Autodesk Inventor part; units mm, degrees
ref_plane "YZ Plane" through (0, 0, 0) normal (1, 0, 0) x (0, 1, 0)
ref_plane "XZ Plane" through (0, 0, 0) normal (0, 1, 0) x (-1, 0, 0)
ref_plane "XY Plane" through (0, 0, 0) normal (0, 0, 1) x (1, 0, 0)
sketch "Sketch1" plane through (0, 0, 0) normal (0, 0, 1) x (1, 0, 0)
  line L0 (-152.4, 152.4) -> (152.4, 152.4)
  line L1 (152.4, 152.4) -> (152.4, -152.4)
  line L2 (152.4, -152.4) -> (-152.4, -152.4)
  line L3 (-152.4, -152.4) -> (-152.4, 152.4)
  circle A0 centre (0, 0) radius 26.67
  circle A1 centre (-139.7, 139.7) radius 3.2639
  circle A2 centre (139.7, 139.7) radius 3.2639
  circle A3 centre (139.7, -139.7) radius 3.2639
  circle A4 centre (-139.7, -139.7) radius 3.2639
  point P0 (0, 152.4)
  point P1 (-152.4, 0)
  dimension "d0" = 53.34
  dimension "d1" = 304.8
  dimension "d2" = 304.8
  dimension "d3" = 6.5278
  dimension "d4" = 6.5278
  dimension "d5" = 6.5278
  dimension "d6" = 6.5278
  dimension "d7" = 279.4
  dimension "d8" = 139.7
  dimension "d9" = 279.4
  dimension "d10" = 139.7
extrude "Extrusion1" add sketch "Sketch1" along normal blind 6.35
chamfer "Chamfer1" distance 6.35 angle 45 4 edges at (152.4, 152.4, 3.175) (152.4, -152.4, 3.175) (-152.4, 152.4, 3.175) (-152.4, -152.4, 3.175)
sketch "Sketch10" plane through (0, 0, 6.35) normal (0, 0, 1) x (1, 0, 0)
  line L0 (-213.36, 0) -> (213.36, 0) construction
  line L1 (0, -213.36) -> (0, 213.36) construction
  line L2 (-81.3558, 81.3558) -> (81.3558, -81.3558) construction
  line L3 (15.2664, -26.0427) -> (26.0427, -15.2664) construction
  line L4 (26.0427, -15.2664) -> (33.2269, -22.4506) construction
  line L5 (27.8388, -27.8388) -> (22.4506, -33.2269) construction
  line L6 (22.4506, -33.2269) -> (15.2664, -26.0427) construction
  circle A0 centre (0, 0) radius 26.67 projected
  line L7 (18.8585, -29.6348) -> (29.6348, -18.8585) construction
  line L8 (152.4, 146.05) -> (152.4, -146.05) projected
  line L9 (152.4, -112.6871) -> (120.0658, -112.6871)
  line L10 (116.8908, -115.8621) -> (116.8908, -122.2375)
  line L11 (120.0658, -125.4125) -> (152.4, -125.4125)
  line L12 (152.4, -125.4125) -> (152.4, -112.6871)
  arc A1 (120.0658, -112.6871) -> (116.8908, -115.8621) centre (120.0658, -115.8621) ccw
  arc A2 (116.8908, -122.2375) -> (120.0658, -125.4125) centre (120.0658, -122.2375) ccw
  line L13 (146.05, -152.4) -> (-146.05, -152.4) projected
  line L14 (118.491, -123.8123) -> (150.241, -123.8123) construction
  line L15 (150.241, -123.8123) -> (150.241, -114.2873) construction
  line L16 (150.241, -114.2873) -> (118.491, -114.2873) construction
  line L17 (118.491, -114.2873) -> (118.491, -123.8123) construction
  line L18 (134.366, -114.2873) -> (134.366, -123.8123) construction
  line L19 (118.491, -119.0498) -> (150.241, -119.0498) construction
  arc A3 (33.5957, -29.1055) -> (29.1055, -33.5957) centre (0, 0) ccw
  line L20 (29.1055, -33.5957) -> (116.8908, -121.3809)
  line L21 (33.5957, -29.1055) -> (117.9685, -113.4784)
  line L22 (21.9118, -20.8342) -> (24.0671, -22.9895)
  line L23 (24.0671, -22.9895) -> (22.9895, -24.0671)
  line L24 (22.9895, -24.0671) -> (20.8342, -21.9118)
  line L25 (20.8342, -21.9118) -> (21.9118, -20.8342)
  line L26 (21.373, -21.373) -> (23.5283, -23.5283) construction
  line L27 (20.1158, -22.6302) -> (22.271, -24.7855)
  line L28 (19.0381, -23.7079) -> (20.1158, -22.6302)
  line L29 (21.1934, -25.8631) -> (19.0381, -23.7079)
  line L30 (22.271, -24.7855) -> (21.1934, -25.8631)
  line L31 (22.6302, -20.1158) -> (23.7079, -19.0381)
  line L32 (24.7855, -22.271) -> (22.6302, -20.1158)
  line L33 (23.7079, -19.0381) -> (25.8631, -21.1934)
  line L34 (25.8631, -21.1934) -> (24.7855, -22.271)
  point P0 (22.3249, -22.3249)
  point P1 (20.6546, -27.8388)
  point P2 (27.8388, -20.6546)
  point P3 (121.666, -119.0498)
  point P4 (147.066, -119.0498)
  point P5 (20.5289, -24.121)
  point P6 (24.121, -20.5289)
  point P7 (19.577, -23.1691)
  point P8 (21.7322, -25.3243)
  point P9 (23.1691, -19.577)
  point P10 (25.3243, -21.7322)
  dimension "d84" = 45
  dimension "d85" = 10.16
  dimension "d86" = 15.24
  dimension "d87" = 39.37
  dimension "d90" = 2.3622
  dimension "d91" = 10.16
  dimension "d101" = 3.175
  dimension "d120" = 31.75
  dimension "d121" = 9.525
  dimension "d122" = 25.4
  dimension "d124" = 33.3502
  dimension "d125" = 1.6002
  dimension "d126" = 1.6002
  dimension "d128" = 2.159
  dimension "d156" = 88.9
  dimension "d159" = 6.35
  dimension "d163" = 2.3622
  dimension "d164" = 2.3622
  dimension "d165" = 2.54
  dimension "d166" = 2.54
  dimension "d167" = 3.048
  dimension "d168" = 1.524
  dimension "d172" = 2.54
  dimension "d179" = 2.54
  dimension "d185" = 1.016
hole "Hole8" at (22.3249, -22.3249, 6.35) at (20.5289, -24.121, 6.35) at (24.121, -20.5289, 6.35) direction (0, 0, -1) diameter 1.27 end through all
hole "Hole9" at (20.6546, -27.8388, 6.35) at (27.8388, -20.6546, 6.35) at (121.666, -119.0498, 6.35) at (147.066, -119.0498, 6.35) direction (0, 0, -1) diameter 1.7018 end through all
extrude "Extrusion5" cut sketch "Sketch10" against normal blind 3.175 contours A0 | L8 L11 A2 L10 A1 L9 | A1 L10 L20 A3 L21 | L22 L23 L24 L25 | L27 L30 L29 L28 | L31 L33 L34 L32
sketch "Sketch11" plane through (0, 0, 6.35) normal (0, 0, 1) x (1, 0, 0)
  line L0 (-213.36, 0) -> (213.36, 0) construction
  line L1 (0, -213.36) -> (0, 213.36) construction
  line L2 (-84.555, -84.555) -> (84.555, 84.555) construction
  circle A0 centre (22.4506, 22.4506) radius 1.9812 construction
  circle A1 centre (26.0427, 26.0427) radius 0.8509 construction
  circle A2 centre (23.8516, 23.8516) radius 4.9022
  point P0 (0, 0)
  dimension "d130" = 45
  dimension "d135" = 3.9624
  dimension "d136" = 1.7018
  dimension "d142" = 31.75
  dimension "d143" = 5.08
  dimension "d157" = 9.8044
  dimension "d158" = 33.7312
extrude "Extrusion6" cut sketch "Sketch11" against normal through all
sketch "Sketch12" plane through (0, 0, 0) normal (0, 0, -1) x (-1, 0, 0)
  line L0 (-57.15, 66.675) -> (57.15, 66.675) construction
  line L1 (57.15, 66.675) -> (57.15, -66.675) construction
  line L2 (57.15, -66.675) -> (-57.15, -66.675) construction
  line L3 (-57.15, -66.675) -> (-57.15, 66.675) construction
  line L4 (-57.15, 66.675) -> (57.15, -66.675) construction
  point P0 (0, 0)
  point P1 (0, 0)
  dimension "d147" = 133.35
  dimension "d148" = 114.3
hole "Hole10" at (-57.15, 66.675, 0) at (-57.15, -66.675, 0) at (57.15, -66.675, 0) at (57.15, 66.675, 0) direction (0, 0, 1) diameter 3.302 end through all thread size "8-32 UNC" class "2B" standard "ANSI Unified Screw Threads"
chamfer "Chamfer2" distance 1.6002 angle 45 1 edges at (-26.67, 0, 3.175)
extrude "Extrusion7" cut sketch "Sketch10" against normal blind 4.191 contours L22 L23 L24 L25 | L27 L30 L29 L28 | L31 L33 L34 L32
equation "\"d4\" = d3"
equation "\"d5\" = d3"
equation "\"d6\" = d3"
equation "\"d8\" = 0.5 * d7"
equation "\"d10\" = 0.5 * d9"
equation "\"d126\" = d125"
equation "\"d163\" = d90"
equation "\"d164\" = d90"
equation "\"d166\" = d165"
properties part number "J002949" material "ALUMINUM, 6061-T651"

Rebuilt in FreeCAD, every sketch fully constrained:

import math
import FreeCAD as App
import Part
import Sketcher
Q = App.Units.Quantity


def edges_at(feature, points):
    """Names of the edges that pass closest to the given points."""
    edges = feature.Shape.Edges
    near = lambda p: min(range(len(edges)), key=lambda i: edges[i].distToShape(Part.Vertex(*p))[0])
    return sorted({f"Edge{near(p) + 1}" for p in points})


def add_polygon(sketch, points):
    """Adds a closed chain of lines whose ends are joined by coincident constraints."""
    first, n = sketch.GeometryCount, len(points)
    for a, b in zip(points, points[1:] + points[:1]):
        sketch.addGeometry(Part.LineSegment(App.Vector(*a, 0), App.Vector(*b, 0)), False)
    for i in range(n):
        sketch.addConstraint(Sketcher.Constraint("Coincident", first + i, 2, first + (i + 1) % n, 1))

doc = App.newDocument("Part")
body = doc.addObject("PartDesign::Body", "Body")

sketch1 = body.newObject("Sketcher::SketchObject", "Sketch")
sketch1.AttachmentSupport = (doc.getObject("XY_Plane"), [""])
sketch1.MapMode = "FlatFace"
add_polygon(sketch1, [(152.4, 152.4), (-152.4, 152.4), (-152.4, -152.4), (152.4, -152.4)])
sketch1.addGeometry(Part.Circle(App.Vector(-139.7, -139.7, 0), App.Vector(0, 0, 1), 3.2639), False)
sketch1.addGeometry(Part.Circle(App.Vector(139.7, -139.7, 0), App.Vector(0, 0, 1), 3.2639), False)
sketch1.addGeometry(Part.Circle(App.Vector(-139.7, 139.7, 0), App.Vector(0, 0, 1), 3.2639), False)
sketch1.addGeometry(Part.Circle(App.Vector(0, 0, 0), App.Vector(0, 0, 1), 26.67), False)
sketch1.addGeometry(Part.Circle(App.Vector(139.7, 139.7, 0), App.Vector(0, 0, 1), 3.2639), False)
sketch1.addConstraint([
    Sketcher.Constraint("Horizontal", 0),
    Sketcher.Constraint("Vertical", 1),
    Sketcher.Constraint("Horizontal", 2),
    Sketcher.Constraint("Vertical", 3),
    Sketcher.Constraint("Coincident", 7, 3, -1, 1),
    Sketcher.Constraint("Equal", 4, 5),
    Sketcher.Constraint("Equal", 5, 6),
    Sketcher.Constraint("Equal", 6, 8),
    Sketcher.Constraint("Symmetric", 5, 3, 6, 3, -1, 1),
    Sketcher.Constraint("Symmetric", 4, 3, 8, 3, -1, 1),
    Sketcher.Constraint("Symmetric", 0, 2, 2, 2, -1, 1),
    Sketcher.Constraint("Symmetric", 4, 3, 5, 3, -2),
    Sketcher.Constraint("Equal", 2, 1),
    Sketcher.Constraint("Diameter", 7, Q("2.1 in")),
    Sketcher.Constraint("DistanceX", 0, 2, 0, 1, Q("12 in")),
    Sketcher.Constraint("Diameter", 4, Q("0.257 in")),
    Sketcher.Constraint("DistanceX", 4, 3, 5, 3, Q("11 in")),
    Sketcher.Constraint("DistanceY", 4, 3, 6, 3, Q("11 in")),
])
pad1 = body.newObject("PartDesign::Pad", "Pad")
pad1.Profile = sketch1
pad1.Length = Q("0.25 in")
doc.recompute()

chamfer = body.newObject("PartDesign::Chamfer", "Chamfer")
chamfer.Base = (pad1, edges_at(pad1, [
    (152.4, 152.4, 3.175),
    (152.4, -152.4, 3.175),
    (-152.4, 152.4, 3.175),
    (-152.4, -152.4, 3.175),
]))
chamfer.Size = Q("0.25 in")

sketch2 = body.newObject("Sketcher::SketchObject", "Sketch001")
sketch2.AttachmentSupport = (doc.getObject("XY_Plane"), [""])
sketch2.MapMode = "FlatFace"
sketch2.AttachmentOffset = App.Placement(App.Vector(0, 0, 0.25 * 25.4), App.Rotation())
sketch2.addGeometry([
    Part.Circle(App.Vector(22.3249, -22.3249, 0), App.Vector(0, 0, 1), 0.635),
    Part.Circle(App.Vector(20.5289, -24.121, 0), App.Vector(0, 0, 1), 0.635),
    Part.Circle(App.Vector(24.121, -20.5289, 0), App.Vector(0, 0, 1), 0.635),
], False)
sketch2.addConstraint([
    Sketcher.Constraint("Equal", 0, 1),
    Sketcher.Constraint("Equal", 1, 2),
    Sketcher.Constraint("Diameter", 0, Q("0.05 in")),
    Sketcher.Constraint("DistanceX", 1, 3, 0, 3, Q("0.0707 in")),
    Sketcher.Constraint("DistanceY", 0, 3, 2, 3, Q("0.0707 in")),
    Sketcher.Constraint("DistanceX", -1, 1, 0, 3, 22.325),
    Sketcher.Constraint("DistanceY", 0, 3, -1, 1, 22.325),
    Sketcher.Constraint("DistanceY", 1, 3, -1, 1, 24.121),
    Sketcher.Constraint("DistanceX", -1, 1, 2, 3, 24.121),
])
doc.recompute()
hole = body.newObject("PartDesign::Hole", "Hole")
hole.Profile = sketch2
hole.ThreadType = "None"
hole.Diameter = Q("0.05 in")
hole.DepthType = "ThroughAll"

sketch3 = body.newObject("Sketcher::SketchObject", "Sketch002")
sketch3.AttachmentSupport = (doc.getObject("XY_Plane"), [""])
sketch3.MapMode = "FlatFace"
sketch3.AttachmentOffset = App.Placement(App.Vector(0, 0, 0.25 * 25.4), App.Rotation())
sketch3.addGeometry([
    Part.Circle(App.Vector(20.6546, -27.8388, 0), App.Vector(0, 0, 1), 0.8509),
    Part.Circle(App.Vector(27.8388, -20.6546, 0), App.Vector(0, 0, 1), 0.8509),
    Part.Circle(App.Vector(121.666, -119.0498, 0), App.Vector(0, 0, 1), 0.8509),
    Part.Circle(App.Vector(147.066, -119.0498, 0), App.Vector(0, 0, 1), 0.8509),
], False)
sketch3.addConstraint([
    Sketcher.Constraint("Equal", 0, 1),
    Sketcher.Constraint("Equal", 1, 2),
    Sketcher.Constraint("Equal", 2, 3),
    Sketcher.Constraint("Horizontal", 2, 3, 3, 3),
    Sketcher.Constraint("Diameter", 0, Q("0.067 in")),
    Sketcher.Constraint("DistanceX", 2, 3, 3, 3, Q("1 in")),
    Sketcher.Constraint("DistanceX", -1, 1, 2, 3, Q("4.79 in")),
    Sketcher.Constraint("DistanceY", 2, 3, -1, 1, Q("4.687 in")),
    Sketcher.Constraint("DistanceX", -1, 1, 0, 3, 20.6546),
    Sketcher.Constraint("DistanceY", 0, 3, -1, 1, 27.8388),
    Sketcher.Constraint("DistanceX", -1, 1, 1, 3, 27.8388),
    Sketcher.Constraint("DistanceY", 1, 3, -1, 1, 20.6546),
])
doc.recompute()
hole2 = body.newObject("PartDesign::Hole", "Hole001")
hole2.Profile = sketch3
hole2.ThreadType = "None"
hole2.Diameter = Q("0.067 in")
hole2.DepthType = "ThroughAll"

sketch4 = body.newObject("Sketcher::SketchObject", "Sketch003")
sketch4.AttachmentSupport = (doc.getObject("XY_Plane"), [""])
sketch4.MapMode = "FlatFace"
sketch4.AttachmentOffset = App.Placement(App.Vector(0, 0, 0.25 * 25.4), App.Rotation())
sketch4.addGeometry([
    Part.LineSegment(App.Vector(29.1055, -33.5957, 0), App.Vector(116.8908, -121.3809, 0)),
    Part.LineSegment(App.Vector(116.8908, -121.3809, 0), App.Vector(116.8908, -122.2375, 0)),
    Part.ArcOfCircle(Part.Circle(App.Vector(120.0658, -122.2375, 0), App.Vector(0, 0, 1), 3.175), math.radians(180), math.radians(270)),
    Part.LineSegment(App.Vector(120.0658, -125.4125, 0), App.Vector(152.4, -125.4125, 0)),
    Part.LineSegment(App.Vector(152.4, -125.4125, 0), App.Vector(152.4, -112.6871, 0)),
    Part.LineSegment(App.Vector(152.4, -112.6871, 0), App.Vector(120.0658, -112.6871, 0)),
    Part.ArcOfCircle(Part.Circle(App.Vector(120.0658, -115.8621, 0), App.Vector(0, 0, 1), 3.175), math.radians(90), math.radians(131.342954)),
    Part.LineSegment(App.Vector(117.9685, -113.4784, 0), App.Vector(33.5957, -29.1055, 0)),
    Part.ArcOfCircle(Part.Circle(App.Vector(0, 0, 0), App.Vector(0, 0, 1), 44.449985), math.radians(-40.903889), math.radians(310.903889)),
], False)
sketch4.addConstraint([
    Sketcher.Constraint("Coincident", 0, 2, 1, 1),
    Sketcher.Constraint("Tangent", 1, 2, 2, 1),
    Sketcher.Constraint("Tangent", 2, 2, 3, 1),
    Sketcher.Constraint("Coincident", 3, 2, 4, 1),
    Sketcher.Constraint("Coincident", 4, 2, 5, 1),
    Sketcher.Constraint("Tangent", 5, 2, 6, 1),
    Sketcher.Constraint("Coincident", 6, 2, 7, 1),
    Sketcher.Constraint("Coincident", 7, 2, 8, 1),
    Sketcher.Constraint("Coincident", 8, 2, 0, 1),
    Sketcher.Constraint("Vertical", 1),
    Sketcher.Constraint("Horizontal", 3),
    Sketcher.Constraint("Vertical", 4),
    Sketcher.Constraint("Horizontal", 5),
    Sketcher.Constraint("Coincident", 8, 3, -1, 1),
    Sketcher.Constraint("Equal", 2, 6),
    Sketcher.Constraint("Parallel", 0, 7),
    Sketcher.Constraint("Vertical", 2, 3, 6, 3),
    Sketcher.Constraint("Radius", 8, Q("1.75 in")),
    Sketcher.Constraint("Angle", 0, Q("-45 deg")),
    Sketcher.Constraint("Radius", 2, Q("0.125 in")),
    Sketcher.Constraint("DistanceX", -1, 1, 3, 2, Q("6 in")),
    Sketcher.Constraint("DistanceX", 3, 1, 3, 2, Q("1.273 in")),
    Sketcher.Constraint("DistanceY", 4, 1, 4, 2, Q("0.501 in")),
    Sketcher.Constraint("DistanceY", 2, 3, -1, 1, Q("4.8125 in")),
    Sketcher.Constraint("DistanceY", 6, 2, 8, 2, Q("3.145 in")),
    Sketcher.Constraint("DistanceY", 1, 2, 1, 1, 0.8566),
])
pocket1 = body.newObject("PartDesign::Pocket", "Pocket")
pocket1.Profile = sketch4
pocket1.Length = Q("0.125 in")

sketch5 = body.newObject("Sketcher::SketchObject", "Sketch004")
sketch5.AttachmentSupport = (doc.getObject("XY_Plane"), [""])
sketch5.MapMode = "FlatFace"
sketch5.AttachmentOffset = App.Placement(App.Vector(0, 0, 0.25 * 25.4), App.Rotation())
sketch5.addGeometry(Part.Circle(App.Vector(23.8516, 23.8516, 0), App.Vector(0, 0, 1), 4.9022), False)
sketch5.addConstraint([
    Sketcher.Constraint("Diameter", 0, Q("0.386 in")),
    Sketcher.Constraint("DistanceX", -1, 1, 0, 3, 23.8516),
    Sketcher.Constraint("DistanceY", -1, 1, 0, 3, 23.8516),
])
pocket2 = body.newObject("PartDesign::Pocket", "Pocket001")
pocket2.Profile = sketch5
pocket2.Type = "ThroughAll"

sketch6 = body.newObject("Sketcher::SketchObject", "Sketch005")
sketch6.AttachmentSupport = (doc.getObject("XY_Plane"), [""])
sketch6.MapMode = "FlatFace"
sketch6.addGeometry([
    Part.Circle(App.Vector(-57.15, 66.675, 0), App.Vector(0, 0, 1), 1.651),
    Part.Circle(App.Vector(-57.15, -66.675, 0), App.Vector(0, 0, 1), 1.651),
    Part.Circle(App.Vector(57.15, -66.675, 0), App.Vector(0, 0, 1), 1.651),
    Part.Circle(App.Vector(57.15, 66.675, 0), App.Vector(0, 0, 1), 1.651),
], False)
sketch6.addConstraint([
    Sketcher.Constraint("Equal", 0, 1),
    Sketcher.Constraint("Equal", 1, 2),
    Sketcher.Constraint("Equal", 2, 3),
    Sketcher.Constraint("Symmetric", 0, 3, 2, 3, -1, 1),
    Sketcher.Constraint("Symmetric", 1, 3, 3, 3, -1, 1),
    Sketcher.Constraint("Symmetric", 1, 3, 2, 3, -2),
    Sketcher.Constraint("Diameter", 0, Q("0.13 in")),
    Sketcher.Constraint("DistanceX", 1, 3, 2, 3, Q("4.5 in")),
    Sketcher.Constraint("DistanceY", 1, 3, 0, 3, Q("5.25 in")),
])
doc.recompute()
hole3 = body.newObject("PartDesign::Hole", "Hole002")
hole3.Profile = sketch6
hole3.ThreadType = "None"
hole3.Diameter = Q("0.13 in")
hole3.DepthType = "ThroughAll"
hole3.Reversed = True
doc.recompute()

chamfer2 = body.newObject("PartDesign::Chamfer", "Chamfer001")
chamfer2.Base = (hole3, edges_at(hole3, [(-26.67, 0, 3.175)]))
chamfer2.Size = Q("0.063 in")

sketch7 = body.newObject("Sketcher::SketchObject", "Sketch006")
sketch7.AttachmentSupport = (doc.getObject("XY_Plane"), [""])
sketch7.MapMode = "FlatFace"
sketch7.AttachmentOffset = App.Placement(App.Vector(0, 0, 0.25 * 25.4), App.Rotation())
add_polygon(sketch7, [(24.0671, -22.9895), (21.9118, -20.8342), (20.8342, -21.9118), (22.9895, -24.0671)])
add_polygon(sketch7, [(22.271, -24.7855), (20.1158, -22.6302), (19.0381, -23.7079), (21.1934, -25.8631)])
add_polygon(sketch7, [(23.7079, -19.0381), (22.6302, -20.1158), (24.7855, -22.271), (25.8631, -21.1934)])
sketch7.addConstraint([
    Sketcher.Constraint("Perpendicular", 0, 1),
    Sketcher.Constraint("Perpendicular", 1, 2),
    Sketcher.Constraint("Perpendicular", 2, 3),
    Sketcher.Constraint("Perpendicular", 3, 4),
    Sketcher.Constraint("Perpendicular", 4, 5),
    Sketcher.Constraint("Perpendicular", 5, 6),
    Sketcher.Constraint("Perpendicular", 6, 7),
    Sketcher.Constraint("Parallel", 7, 8),
    Sketcher.Constraint("Perpendicular", 8, 9),
    Sketcher.Constraint("Perpendicular", 9, 10),
    Sketcher.Constraint("Perpendicular", 10, 11),
    Sketcher.Constraint("Equal", 2, 4),
    Sketcher.Constraint("Equal", 3, 5),
    Sketcher.Constraint("Equal", 7, 8),
    Sketcher.Constraint("Equal", 6, 9),
    Sketcher.Constraint("Angle", 2, Q("-45 deg")),
    Sketcher.Constraint("Distance", 0, Q("0.12 in")),
    Sketcher.Constraint("Distance", 1, Q("0.06 in")),
    Sketcher.Constraint("DistanceX", 5, 2, 3, 2, Q("0.198 in")),
    Sketcher.Constraint("DistanceX", 4, 2, 8, 2, Q("0.099 in")),
    Sketcher.Constraint("DistanceY", 4, 2, 8, 2, Q("0.099 in")),
    Sketcher.Constraint("DistanceX", -1, 1, 2, 2, Q("0.9051 in")),
    Sketcher.Constraint("DistanceY", 3, 2, -1, 1, Q("0.9051 in")),
    Sketcher.Constraint("DistanceY", 7, 2, -1, 1, Q("0.9758 in")),
])
pocket3 = body.newObject("PartDesign::Pocket", "Pocket002")
pocket3.Profile = sketch7
pocket3.Length = Q("0.165 in")

doc.recompute()
